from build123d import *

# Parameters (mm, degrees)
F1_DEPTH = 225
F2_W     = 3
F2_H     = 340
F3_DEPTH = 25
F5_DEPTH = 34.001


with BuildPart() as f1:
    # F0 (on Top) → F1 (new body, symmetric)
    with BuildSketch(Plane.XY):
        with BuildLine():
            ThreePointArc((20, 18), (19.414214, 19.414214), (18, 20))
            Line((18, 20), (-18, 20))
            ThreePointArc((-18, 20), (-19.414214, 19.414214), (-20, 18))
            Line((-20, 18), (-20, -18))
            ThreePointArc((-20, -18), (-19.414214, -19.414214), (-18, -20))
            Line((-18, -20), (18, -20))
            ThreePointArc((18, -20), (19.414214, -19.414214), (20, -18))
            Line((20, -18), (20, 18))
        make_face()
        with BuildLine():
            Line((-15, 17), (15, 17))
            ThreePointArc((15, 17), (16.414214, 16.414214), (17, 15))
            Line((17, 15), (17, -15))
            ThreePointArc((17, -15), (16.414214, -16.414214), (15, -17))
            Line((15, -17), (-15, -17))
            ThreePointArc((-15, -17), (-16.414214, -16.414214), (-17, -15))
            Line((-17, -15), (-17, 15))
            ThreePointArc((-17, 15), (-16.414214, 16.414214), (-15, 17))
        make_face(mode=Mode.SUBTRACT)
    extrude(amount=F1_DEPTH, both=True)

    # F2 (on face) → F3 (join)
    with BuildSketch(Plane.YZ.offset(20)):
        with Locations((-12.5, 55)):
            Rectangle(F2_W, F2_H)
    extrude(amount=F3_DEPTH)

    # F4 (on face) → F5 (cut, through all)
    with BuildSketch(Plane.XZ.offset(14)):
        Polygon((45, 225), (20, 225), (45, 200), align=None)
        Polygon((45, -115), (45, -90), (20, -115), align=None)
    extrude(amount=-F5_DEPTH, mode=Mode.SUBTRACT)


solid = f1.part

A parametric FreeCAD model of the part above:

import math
import FreeCAD as App
import Part
import Sketcher
Q = App.Units.Quantity


def add_polygon(sketch, points):
    """Adds a closed chain of lines whose ends are joined by coincident constraints."""
    first, n = sketch.GeometryCount, len(points)
    for a, b in zip(points, points[1:] + points[:1]):
        sketch.addGeometry(Part.LineSegment(App.Vector(*a, 0), App.Vector(*b, 0)), False)
    for i in range(n):
        sketch.addConstraint(Sketcher.Constraint("Coincident", first + i, 2, first + (i + 1) % n, 1))

doc = App.newDocument("Part")
params = doc.addObject("Spreadsheet::Sheet", "Params")
for row, (alias, value) in enumerate([
    ("sketch1_radius", "1.999999 mm"),
    ("sketch1_width", "36 mm"),
    ("sketch1_width2", "30 mm"),
    ("pad1_length", "450 mm"),
    ("sketch2_width", "3 mm"),
    ("sketch2_height", "340 mm"),
    ("pad2_length", "25 mm"),
    ("sketch3_width", "25 mm"),
], start=1):
    params.set(f"A{row}", alias)
    params.set(f"B{row}", "=" + value)
    params.setAlias(f"B{row}", alias)

body = doc.addObject("PartDesign::Body", "Body")

# Sketch on XY plane
sketch1 = body.newObject("Sketcher::SketchObject", "Sketch")
sketch1.AttachmentSupport = (doc.getObject("XY_Plane"), [""])
sketch1.MapMode = "FlatFace"
sketch1.addGeometry([
    Part.ArcOfCircle(Part.Circle(App.Vector(18, 18, 0), App.Vector(0, 0, 1), 2), math.radians(0), math.radians(90)),  # 0
    Part.LineSegment(App.Vector(18, 20, 0), App.Vector(-18, 20, 0)),  # 1
    Part.ArcOfCircle(Part.Circle(App.Vector(-18, 18, 0), App.Vector(0, 0, 1), 2), math.radians(90), math.radians(180)),  # 2
    Part.LineSegment(App.Vector(-20, 18, 0), App.Vector(-20, -18, 0)),  # 3
    Part.ArcOfCircle(Part.Circle(App.Vector(-18, -18, 0), App.Vector(0, 0, 1), 2), math.radians(180), math.radians(270)),  # 4
    Part.LineSegment(App.Vector(-18, -20, 0), App.Vector(18, -20, 0)),  # 5
    Part.ArcOfCircle(Part.Circle(App.Vector(18, -18, 0), App.Vector(0, 0, 1), 2), math.radians(-90), math.radians(0)),  # 6
    Part.LineSegment(App.Vector(20, -18, 0), App.Vector(20, 18, 0)),  # 7
    Part.ArcOfCircle(Part.Circle(App.Vector(-15, 15, 0), App.Vector(0, 0, 1), 2), math.radians(90), math.radians(180)),  # 8
    Part.LineSegment(App.Vector(-15, 17, 0), App.Vector(15, 17, 0)),  # 9
    Part.ArcOfCircle(Part.Circle(App.Vector(15, 15, 0), App.Vector(0, 0, 1), 2), math.radians(0), math.radians(90)),  # 10
    Part.LineSegment(App.Vector(17, 15, 0), App.Vector(17, -15, 0)),  # 11
    Part.ArcOfCircle(Part.Circle(App.Vector(15, -15, 0), App.Vector(0, 0, 1), 2), math.radians(-90), math.radians(0)),  # 12
    Part.LineSegment(App.Vector(15, -17, 0), App.Vector(-15, -17, 0)),  # 13
    Part.ArcOfCircle(Part.Circle(App.Vector(-15, -15, 0), App.Vector(0, 0, 1), 2), math.radians(180), math.radians(270)),  # 14
    Part.LineSegment(App.Vector(-17, -15, 0), App.Vector(-17, 15, 0)),  # 15
], False)
sketch1.addConstraint([
    Sketcher.Constraint("Tangent", 0, 2, 1, 1),
    Sketcher.Constraint("Tangent", 1, 2, 2, 1),
    Sketcher.Constraint("Tangent", 2, 2, 3, 1),
    Sketcher.Constraint("Tangent", 3, 2, 4, 1),
    Sketcher.Constraint("Tangent", 4, 2, 5, 1),
    Sketcher.Constraint("Tangent", 5, 2, 6, 1),
    Sketcher.Constraint("Tangent", 6, 2, 7, 1),
    Sketcher.Constraint("Tangent", 7, 2, 0, 1),
    Sketcher.Constraint("Tangent", 8, 1, 9, 1),
    Sketcher.Constraint("Tangent", 9, 2, 10, 2),
    Sketcher.Constraint("Tangent", 10, 1, 11, 1),
    Sketcher.Constraint("Tangent", 11, 2, 12, 2),
    Sketcher.Constraint("Tangent", 12, 1, 13, 1),
    Sketcher.Constraint("Tangent", 13, 2, 14, 2),
    Sketcher.Constraint("Tangent", 14, 1, 15, 1),
    Sketcher.Constraint("Tangent", 15, 2, 8, 2),
    Sketcher.Constraint("Horizontal", 1),
    Sketcher.Constraint("Vertical", 3),
    Sketcher.Constraint("Horizontal", 5),
    Sketcher.Constraint("Vertical", 7),
    Sketcher.Constraint("Horizontal", 9),
    Sketcher.Constraint("Vertical", 11),
    Sketcher.Constraint("Horizontal", 13),
    Sketcher.Constraint("Vertical", 15),
    Sketcher.Constraint("Equal", 0, 2),
    Sketcher.Constraint("Equal", 2, 4),
    Sketcher.Constraint("Equal", 4, 6),
    Sketcher.Constraint("Equal", 6, 8),
    Sketcher.Constraint("Equal", 8, 10),
    Sketcher.Constraint("Equal", 10, 12),
    Sketcher.Constraint("Equal", 12, 14),
    Sketcher.Constraint("Symmetric", 0, 3, 4, 3, -1, 1),
    Sketcher.Constraint("Symmetric", 8, 3, 12, 3, -1, 1),
    Sketcher.Constraint("Equal", 5, 3),
    Sketcher.Constraint("Equal", 13, 11),
    Sketcher.Constraint("Radius", 0, Q("1.999999 mm")),
    Sketcher.Constraint("DistanceX", 1, 2, 1, 1, Q("36 mm")),
    Sketcher.Constraint("DistanceX", 9, 1, 9, 2, Q("30 mm")),
])
sketch1.setExpression("Constraints[35]", "Params.sketch1_radius")
sketch1.setExpression("Constraints[36]", "Params.sketch1_width")
sketch1.setExpression("Constraints[37]", "Params.sketch1_width2")
pad1 = body.newObject("PartDesign::Pad", "Pad")
pad1.Profile = sketch1
pad1.setExpression("Length", "Params.pad1_length")
pad1.Midplane = True

# Sketch on YZ plane
sketch2 = body.newObject("Sketcher::SketchObject", "Sketch001")
sketch2.AttachmentSupport = (doc.getObject("YZ_Plane"), [""])
sketch2.MapMode = "FlatFace"
sketch2.AttachmentOffset = App.Placement(App.Vector(0, 0, 20), App.Rotation())
add_polygon(sketch2, [(-14, 225), (-14, -115), (-11, -115), (-11, 225)])  # lines 0-3
sketch2.addConstraint([
    Sketcher.Constraint("Vertical", 0),
    Sketcher.Constraint("Horizontal", 1),
    Sketcher.Constraint("Vertical", 2),
    Sketcher.Constraint("Horizontal", 3),
    Sketcher.Constraint("DistanceX", 1, 1, 1, 2, Q("3 mm")),
    Sketcher.Constraint("DistanceY", 0, 2, 0, 1, Q("340 mm")),
    Sketcher.Constraint("DistanceX", 0, 2, -1, 1, Q("14 mm")),
    Sketcher.Constraint("DistanceY", 0, 2, -1, 1, Q("115 mm")),
])
sketch2.setExpression("Constraints[8]", "Params.sketch2_width")
sketch2.setExpression("Constraints[9]", "Params.sketch2_height")
pad2 = body.newObject("PartDesign::Pad", "Pad001")
pad2.Profile = sketch2
pad2.setExpression("Length", "Params.pad2_length")

# Sketch on XZ plane
sketch3 = body.newObject("Sketcher::SketchObject", "Sketch002")
sketch3.AttachmentSupport = (doc.getObject("XZ_Plane"), [""])
sketch3.MapMode = "FlatFace"
sketch3.AttachmentOffset = App.Placement(App.Vector(0, 0, 14), App.Rotation())
add_polygon(sketch3, [(45, 225), (20, 225), (45, 200)])  # lines 0-2
add_polygon(sketch3, [(45, -115), (45, -90), (20, -115)])  # lines 3-5
sketch3.addConstraint([
    Sketcher.Constraint("Horizontal", 0),
    Sketcher.Constraint("Vertical", 2),
    Sketcher.Constraint("Vertical", 3),
    Sketcher.Constraint("Horizontal", 5),
    Sketcher.Constraint("Perpendicular", 1, 4),
    Sketcher.Constraint("Vertical", 2, 2, 3, 2),
    Sketcher.Constraint("Vertical", 0, 2, 4, 2),
    Sketcher.Constraint("Equal", 5, 2),
    Sketcher.Constraint("DistanceX", 0, 2, 0, 1, Q("25 mm")),
    Sketcher.Constraint("DistanceX", -1, 1, 0, 2, Q("20 mm")),
    Sketcher.Constraint("DistanceY", -1, 1, 0, 2, Q("225 mm")),
    Sketcher.Constraint("DistanceY", 3, 2, -1, 1, Q("90 mm")),
])
sketch3.setExpression("Constraints[14]", "Params.sketch3_width")
pocket1 = body.newObject("PartDesign::Pocket", "Pocket")
pocket1.Profile = sketch3
pocket1.Type = "ThroughAll"

doc.recompute()
